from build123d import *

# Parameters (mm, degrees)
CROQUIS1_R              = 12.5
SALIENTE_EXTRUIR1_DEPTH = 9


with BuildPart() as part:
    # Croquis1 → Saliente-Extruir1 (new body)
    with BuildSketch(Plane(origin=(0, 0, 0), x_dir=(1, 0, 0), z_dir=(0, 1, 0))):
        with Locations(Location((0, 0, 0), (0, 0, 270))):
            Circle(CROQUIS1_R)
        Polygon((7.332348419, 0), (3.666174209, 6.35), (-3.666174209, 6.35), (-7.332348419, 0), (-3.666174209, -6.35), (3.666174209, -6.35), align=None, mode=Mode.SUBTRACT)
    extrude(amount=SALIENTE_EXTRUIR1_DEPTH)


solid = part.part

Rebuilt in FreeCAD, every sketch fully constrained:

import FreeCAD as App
import Part
import Sketcher
from FreeCAD import Vector
Q = App.Units.Quantity


def add_polygon(sketch, points):
    """Adds a closed chain of lines whose ends are joined by coincident constraints."""
    first, n = sketch.GeometryCount, len(points)
    for a, b in zip(points, points[1:] + points[:1]):
        sketch.addGeometry(Part.LineSegment(App.Vector(*a, 0), App.Vector(*b, 0)), False)
    for i in range(n):
        sketch.addConstraint(Sketcher.Constraint("Coincident", first + i, 2, first + (i + 1) % n, 1))

doc = App.newDocument("Part")
body = doc.addObject("PartDesign::Body", "Body")

# Sketch on XZ plane
sketch1 = body.newObject("Sketcher::SketchObject", "Sketch")
sketch1.AttachmentSupport = (doc.getObject("XZ_Plane"), [""])
sketch1.MapMode = "FlatFace"
sketch1.addGeometry(Part.Circle(Vector(0, 0, 0), Vector(0, 0, 1), 12), False)  # 0
add_polygon(sketch1, [(4, -6), (7, 0), (4, 6), (-4, 6), (-7, 0), (-4, -6)])  # lines 1-6
sketch1.addConstraint([
    Sketcher.Constraint("Horizontal", 3),
    Sketcher.Constraint("Horizontal", 6),
    Sketcher.Constraint("Coincident", 0, 3, -1, 1),
    Sketcher.Constraint("Symmetric", 1, 2, 4, 2, -1, 1),
    Sketcher.Constraint("Symmetric", 2, 2, 5, 2, -1, 1),
    Sketcher.Constraint("PointOnObject", 1, 2, -1),
    Sketcher.Constraint("Parallel", 1, 4),
    Sketcher.Constraint("Vertical", 3, 2, 5, 2),
    Sketcher.Constraint("Diameter", 0, Q("25 mm")),
    Sketcher.Constraint("Angle", 1, Q("60 deg")),
    Sketcher.Constraint("DistanceY", 5, 2, 3, 2, Q("12.7 mm")),
    Sketcher.Constraint("DistanceX", 3, 2, 3, 1, Q("7.332348 mm")),
])
pad1 = body.newObject("PartDesign::Pad", "Pad")
pad1.Profile = sketch1
pad1.Length = 9
pad1.Reversed = True

doc.recompute()
